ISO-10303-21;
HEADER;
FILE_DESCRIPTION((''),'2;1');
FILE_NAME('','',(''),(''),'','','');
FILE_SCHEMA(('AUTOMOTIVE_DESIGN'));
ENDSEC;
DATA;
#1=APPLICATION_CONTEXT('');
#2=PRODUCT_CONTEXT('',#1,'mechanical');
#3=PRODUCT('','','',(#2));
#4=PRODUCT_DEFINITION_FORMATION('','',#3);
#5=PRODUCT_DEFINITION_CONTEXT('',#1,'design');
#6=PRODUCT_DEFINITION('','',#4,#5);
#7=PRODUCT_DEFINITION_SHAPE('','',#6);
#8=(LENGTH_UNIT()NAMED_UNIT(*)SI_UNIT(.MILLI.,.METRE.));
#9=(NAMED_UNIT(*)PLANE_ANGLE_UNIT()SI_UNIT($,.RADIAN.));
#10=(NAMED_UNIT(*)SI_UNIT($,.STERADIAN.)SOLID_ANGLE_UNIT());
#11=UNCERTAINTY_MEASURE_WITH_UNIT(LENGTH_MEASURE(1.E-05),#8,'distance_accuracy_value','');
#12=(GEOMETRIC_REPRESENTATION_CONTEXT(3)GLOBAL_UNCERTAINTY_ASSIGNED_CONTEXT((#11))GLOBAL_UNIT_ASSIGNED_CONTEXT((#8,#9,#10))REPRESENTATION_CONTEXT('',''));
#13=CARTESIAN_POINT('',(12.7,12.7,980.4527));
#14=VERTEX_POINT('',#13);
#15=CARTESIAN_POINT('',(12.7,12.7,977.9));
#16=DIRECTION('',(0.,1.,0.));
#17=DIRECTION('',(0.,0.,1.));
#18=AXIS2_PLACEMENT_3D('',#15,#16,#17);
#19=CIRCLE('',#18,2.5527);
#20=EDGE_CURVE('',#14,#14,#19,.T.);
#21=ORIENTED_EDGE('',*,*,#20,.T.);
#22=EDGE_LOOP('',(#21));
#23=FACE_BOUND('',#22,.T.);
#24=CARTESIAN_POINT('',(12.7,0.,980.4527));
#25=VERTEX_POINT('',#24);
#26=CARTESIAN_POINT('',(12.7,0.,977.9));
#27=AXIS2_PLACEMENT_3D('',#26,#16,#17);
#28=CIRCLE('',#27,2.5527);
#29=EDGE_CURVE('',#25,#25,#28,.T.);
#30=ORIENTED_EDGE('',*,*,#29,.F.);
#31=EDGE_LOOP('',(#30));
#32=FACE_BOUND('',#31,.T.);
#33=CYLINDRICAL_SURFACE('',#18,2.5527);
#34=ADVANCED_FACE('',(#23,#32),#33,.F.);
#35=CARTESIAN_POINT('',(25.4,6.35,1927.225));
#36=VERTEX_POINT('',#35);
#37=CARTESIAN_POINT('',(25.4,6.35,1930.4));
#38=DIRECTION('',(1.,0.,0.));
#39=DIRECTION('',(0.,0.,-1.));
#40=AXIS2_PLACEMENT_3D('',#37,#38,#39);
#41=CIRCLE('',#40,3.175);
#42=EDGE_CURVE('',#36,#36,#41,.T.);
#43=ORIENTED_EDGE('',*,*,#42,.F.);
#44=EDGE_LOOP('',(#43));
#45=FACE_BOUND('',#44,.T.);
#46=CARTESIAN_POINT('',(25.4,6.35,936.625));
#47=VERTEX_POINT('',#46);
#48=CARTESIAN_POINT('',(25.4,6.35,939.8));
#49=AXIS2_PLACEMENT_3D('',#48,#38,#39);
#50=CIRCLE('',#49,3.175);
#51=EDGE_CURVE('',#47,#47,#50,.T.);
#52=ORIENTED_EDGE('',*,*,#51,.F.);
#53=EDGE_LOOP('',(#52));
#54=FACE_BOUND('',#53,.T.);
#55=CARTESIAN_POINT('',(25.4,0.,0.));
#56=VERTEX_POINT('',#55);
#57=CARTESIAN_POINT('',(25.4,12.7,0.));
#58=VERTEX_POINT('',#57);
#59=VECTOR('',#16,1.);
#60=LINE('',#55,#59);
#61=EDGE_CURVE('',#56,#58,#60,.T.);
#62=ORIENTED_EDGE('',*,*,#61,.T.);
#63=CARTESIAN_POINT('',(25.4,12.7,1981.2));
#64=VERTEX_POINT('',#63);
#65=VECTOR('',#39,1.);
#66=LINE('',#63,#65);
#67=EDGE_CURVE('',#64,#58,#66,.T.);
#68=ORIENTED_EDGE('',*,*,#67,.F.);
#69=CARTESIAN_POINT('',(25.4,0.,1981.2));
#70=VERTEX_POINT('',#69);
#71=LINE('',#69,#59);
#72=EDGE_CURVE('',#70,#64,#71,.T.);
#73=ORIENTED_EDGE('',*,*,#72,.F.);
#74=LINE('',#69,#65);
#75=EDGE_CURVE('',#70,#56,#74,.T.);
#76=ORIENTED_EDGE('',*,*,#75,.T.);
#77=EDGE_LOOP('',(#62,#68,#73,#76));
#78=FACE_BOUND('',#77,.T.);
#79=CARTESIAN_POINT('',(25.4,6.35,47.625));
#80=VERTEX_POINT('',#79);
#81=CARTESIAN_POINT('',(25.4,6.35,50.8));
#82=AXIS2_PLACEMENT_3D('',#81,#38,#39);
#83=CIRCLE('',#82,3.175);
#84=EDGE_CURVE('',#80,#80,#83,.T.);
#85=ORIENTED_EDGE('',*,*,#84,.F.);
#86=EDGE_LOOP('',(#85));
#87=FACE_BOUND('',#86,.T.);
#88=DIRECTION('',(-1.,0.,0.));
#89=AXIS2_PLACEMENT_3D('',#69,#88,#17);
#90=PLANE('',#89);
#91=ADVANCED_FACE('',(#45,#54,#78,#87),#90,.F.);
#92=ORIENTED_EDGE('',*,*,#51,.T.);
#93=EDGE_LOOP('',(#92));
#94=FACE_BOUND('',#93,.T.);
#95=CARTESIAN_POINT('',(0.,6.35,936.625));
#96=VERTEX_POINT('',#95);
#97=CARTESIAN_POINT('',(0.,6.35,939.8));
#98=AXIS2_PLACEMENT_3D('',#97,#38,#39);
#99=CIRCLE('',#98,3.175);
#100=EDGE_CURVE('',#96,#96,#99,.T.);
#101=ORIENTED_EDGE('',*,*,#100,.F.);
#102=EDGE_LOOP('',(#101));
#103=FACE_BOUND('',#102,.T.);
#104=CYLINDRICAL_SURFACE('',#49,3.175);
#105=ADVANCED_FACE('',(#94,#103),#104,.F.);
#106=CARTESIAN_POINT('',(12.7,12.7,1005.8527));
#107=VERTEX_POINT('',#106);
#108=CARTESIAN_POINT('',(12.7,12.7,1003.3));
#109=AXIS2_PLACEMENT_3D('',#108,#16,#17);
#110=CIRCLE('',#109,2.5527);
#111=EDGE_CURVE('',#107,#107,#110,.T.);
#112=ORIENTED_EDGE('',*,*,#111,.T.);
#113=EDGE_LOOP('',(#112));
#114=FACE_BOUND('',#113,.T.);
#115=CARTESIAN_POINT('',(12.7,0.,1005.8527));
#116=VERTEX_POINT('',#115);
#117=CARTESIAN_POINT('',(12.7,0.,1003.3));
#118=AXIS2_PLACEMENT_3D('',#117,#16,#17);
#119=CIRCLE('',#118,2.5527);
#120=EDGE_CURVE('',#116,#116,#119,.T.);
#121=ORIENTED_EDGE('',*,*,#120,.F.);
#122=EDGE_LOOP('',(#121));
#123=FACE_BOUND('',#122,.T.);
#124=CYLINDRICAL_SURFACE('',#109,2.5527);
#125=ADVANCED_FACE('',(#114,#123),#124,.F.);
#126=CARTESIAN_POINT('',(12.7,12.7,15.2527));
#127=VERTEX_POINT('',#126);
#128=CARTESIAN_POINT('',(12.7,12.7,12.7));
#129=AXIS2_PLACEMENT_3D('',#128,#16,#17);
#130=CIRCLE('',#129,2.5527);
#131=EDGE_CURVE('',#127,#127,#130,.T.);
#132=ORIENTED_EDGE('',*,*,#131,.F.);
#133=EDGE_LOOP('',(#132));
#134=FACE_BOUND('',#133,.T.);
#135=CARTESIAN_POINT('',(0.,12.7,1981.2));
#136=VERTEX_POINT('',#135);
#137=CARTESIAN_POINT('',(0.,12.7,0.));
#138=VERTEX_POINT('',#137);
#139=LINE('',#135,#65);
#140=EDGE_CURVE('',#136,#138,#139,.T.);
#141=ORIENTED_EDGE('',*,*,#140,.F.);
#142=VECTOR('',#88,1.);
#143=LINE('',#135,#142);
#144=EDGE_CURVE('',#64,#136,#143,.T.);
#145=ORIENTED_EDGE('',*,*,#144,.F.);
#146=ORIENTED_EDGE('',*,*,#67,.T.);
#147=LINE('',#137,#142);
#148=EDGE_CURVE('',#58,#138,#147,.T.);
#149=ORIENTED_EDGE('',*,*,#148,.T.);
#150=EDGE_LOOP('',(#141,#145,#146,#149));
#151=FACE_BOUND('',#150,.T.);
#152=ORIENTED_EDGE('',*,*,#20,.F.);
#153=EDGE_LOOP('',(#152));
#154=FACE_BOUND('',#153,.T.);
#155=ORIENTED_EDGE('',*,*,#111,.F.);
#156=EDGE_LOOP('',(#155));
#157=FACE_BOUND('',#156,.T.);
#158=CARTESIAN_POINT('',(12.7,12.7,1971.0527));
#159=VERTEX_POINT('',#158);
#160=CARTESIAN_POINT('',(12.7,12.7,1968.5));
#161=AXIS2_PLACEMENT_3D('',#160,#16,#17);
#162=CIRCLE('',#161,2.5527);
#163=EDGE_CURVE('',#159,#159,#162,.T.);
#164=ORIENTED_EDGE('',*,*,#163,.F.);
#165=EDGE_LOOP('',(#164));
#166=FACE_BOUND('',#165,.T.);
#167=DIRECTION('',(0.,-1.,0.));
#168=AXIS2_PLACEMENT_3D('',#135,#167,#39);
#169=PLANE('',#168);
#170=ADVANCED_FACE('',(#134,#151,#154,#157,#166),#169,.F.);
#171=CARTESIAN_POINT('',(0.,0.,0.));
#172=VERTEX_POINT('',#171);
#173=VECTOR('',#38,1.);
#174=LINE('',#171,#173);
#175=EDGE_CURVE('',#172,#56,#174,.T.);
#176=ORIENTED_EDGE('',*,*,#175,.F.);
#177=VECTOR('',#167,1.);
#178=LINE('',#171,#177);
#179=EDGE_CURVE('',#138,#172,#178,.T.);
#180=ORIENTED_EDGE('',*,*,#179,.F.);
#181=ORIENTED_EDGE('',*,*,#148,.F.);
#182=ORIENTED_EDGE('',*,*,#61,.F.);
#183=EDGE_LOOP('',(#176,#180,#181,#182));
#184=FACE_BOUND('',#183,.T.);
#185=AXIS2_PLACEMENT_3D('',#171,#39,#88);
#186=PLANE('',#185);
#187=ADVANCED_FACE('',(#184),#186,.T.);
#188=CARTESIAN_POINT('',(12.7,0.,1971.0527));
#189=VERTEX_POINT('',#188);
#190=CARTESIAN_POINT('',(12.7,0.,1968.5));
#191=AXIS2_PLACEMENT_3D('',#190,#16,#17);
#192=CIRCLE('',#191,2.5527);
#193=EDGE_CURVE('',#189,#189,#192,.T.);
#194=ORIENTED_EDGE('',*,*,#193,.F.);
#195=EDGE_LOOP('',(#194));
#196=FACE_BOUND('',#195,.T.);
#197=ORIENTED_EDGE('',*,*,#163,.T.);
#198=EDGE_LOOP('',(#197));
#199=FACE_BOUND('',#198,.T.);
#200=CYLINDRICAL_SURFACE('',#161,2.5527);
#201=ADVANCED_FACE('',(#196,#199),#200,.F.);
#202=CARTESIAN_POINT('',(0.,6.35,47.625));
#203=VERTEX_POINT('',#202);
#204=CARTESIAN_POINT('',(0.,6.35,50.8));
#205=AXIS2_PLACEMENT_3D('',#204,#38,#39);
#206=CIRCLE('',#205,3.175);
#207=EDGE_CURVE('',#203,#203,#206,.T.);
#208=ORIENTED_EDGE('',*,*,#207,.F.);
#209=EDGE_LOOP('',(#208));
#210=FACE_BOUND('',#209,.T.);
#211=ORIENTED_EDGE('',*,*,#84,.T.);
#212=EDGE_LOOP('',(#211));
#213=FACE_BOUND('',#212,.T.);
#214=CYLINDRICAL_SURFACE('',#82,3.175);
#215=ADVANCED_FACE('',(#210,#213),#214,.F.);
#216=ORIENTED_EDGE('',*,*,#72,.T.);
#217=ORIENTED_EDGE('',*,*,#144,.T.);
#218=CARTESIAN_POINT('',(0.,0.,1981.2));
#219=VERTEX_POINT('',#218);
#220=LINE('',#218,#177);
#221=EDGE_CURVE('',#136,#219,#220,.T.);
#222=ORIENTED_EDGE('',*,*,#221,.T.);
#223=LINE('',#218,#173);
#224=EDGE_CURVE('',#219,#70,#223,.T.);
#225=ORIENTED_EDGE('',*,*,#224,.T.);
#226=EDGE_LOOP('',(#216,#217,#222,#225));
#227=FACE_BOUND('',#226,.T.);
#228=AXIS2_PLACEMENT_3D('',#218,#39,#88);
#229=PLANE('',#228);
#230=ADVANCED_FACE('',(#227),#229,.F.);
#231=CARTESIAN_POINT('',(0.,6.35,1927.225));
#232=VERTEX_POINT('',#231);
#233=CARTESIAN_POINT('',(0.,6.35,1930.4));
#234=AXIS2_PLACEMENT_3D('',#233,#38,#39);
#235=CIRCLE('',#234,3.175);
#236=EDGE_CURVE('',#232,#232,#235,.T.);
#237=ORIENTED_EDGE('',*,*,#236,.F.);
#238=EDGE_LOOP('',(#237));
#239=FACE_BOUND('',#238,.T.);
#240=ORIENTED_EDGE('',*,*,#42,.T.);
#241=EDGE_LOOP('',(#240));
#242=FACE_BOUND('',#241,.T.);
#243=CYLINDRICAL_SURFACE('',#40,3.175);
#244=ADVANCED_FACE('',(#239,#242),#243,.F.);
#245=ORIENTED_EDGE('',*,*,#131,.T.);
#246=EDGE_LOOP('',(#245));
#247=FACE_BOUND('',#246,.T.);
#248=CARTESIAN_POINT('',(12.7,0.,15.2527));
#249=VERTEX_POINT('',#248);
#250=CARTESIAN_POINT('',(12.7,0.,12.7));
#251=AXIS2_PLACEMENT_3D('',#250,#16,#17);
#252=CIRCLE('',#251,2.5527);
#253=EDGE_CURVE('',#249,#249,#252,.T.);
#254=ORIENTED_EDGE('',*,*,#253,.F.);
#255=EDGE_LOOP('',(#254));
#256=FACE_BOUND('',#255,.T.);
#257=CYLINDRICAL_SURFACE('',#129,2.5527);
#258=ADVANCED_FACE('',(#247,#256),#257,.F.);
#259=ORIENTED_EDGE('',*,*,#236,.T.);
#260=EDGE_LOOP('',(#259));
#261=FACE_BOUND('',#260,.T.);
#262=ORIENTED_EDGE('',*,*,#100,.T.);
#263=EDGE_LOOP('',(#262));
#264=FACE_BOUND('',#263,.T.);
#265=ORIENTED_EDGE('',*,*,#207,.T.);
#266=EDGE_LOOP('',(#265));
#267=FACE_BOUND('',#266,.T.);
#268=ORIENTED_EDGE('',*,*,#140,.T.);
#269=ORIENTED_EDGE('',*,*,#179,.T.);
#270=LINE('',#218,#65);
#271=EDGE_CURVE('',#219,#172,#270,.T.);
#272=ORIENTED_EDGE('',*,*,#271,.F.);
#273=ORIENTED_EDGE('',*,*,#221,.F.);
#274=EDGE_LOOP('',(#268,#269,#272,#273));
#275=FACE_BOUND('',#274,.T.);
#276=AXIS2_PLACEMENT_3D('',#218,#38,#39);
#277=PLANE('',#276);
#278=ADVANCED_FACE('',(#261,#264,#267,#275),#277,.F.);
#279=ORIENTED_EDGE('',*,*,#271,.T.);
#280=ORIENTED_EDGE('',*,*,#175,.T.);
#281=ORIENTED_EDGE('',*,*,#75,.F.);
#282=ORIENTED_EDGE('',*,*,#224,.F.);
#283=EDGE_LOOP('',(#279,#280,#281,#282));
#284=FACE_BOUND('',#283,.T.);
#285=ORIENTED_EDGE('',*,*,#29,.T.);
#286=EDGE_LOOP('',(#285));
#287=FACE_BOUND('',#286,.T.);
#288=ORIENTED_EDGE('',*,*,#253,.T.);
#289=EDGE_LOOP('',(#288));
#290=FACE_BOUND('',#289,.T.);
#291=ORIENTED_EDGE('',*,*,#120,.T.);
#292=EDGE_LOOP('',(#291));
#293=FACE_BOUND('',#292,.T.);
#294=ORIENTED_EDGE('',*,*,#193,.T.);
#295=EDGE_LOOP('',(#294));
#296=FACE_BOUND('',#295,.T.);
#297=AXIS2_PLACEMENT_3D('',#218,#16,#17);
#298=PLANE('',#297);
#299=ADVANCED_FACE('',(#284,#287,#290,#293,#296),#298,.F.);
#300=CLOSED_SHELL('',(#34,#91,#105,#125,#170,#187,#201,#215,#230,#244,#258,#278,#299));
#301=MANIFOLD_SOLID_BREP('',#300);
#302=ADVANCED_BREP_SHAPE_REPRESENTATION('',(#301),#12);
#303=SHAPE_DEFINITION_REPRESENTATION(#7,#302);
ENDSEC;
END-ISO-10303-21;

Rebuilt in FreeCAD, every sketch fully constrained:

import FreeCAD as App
import Part
import Sketcher
Q = App.Units.Quantity

doc = App.newDocument("Part")
body = doc.addObject("PartDesign::Body", "Body")

# Sketch on XY plane
sketch1 = doc.addObject("Sketcher::SketchObject", "Sketch")
body.addObject(sketch1)
sketch1.AttachmentSupport = (doc.XY_Plane, [""])
sketch1.MapMode = "FlatFace"
sketch1.addGeometry(Part.LineSegment(App.Vector(0, 13, 0), App.Vector(0, 0, 0)), False)
sketch1.addGeometry(Part.LineSegment(App.Vector(0, 0, 0), App.Vector(25, 0, 0)), False)
sketch1.addGeometry(Part.LineSegment(App.Vector(25, 0, 0), App.Vector(25, 13, 0)), False)
sketch1.addGeometry(Part.LineSegment(App.Vector(25, 13, 0), App.Vector(0, 13, 0)), False)
sketch1.addConstraint(Sketcher.Constraint("Coincident", 0, 2, 1, 1))
sketch1.addConstraint(Sketcher.Constraint("Coincident", 1, 2, 2, 1))
sketch1.addConstraint(Sketcher.Constraint("Coincident", 2, 2, 3, 1))
sketch1.addConstraint(Sketcher.Constraint("Coincident", 3, 2, 0, 1))
sketch1.addConstraint(Sketcher.Constraint("Vertical", 0))
sketch1.addConstraint(Sketcher.Constraint("Horizontal", 1))
sketch1.addConstraint(Sketcher.Constraint("Vertical", 2))
sketch1.addConstraint(Sketcher.Constraint("Horizontal", 3))
sketch1.addConstraint(Sketcher.Constraint("Coincident", 0, 2, -1, 1))
sketch1.addConstraint(Sketcher.Constraint("DistanceX", 1, 1, 1, 2, Q("1 in")))
sketch1.addConstraint(Sketcher.Constraint("DistanceY", 0, 2, 0, 1, Q("0.5 in")))
pad1 = doc.addObject("PartDesign::Pad", "Pad")
body.addObject(pad1)
pad1.Profile = sketch1
pad1.Length = Q("78 in")

# Sketch on XZ plane
sketch2 = doc.addObject("Sketcher::SketchObject", "Sketch001")
body.addObject(sketch2)
sketch2.AttachmentSupport = (doc.XZ_Plane, [""])
sketch2.MapMode = "FlatFace"
sketch2.AttachmentOffset = App.Placement(App.Vector(0, 0, -0.5 * 25.4), App.Rotation())
sketch2.addGeometry(Part.Circle(App.Vector(12.7, 1968.5, 0), App.Vector(0, 0, 1), 2.6), False)
sketch2.addGeometry(Part.Circle(App.Vector(12.7, 977.9, 0), App.Vector(0, 0, 1), 2.6), False)
sketch2.addGeometry(Part.Circle(App.Vector(12.7, 1003.3, 0), App.Vector(0, 0, 1), 2.6), False)
sketch2.addGeometry(Part.Circle(App.Vector(12.7, 12.7, 0), App.Vector(0, 0, 1), 2.6), False)
sketch2.addConstraint(Sketcher.Constraint("Equal", 0, 1))
sketch2.addConstraint(Sketcher.Constraint("Equal", 1, 2))
sketch2.addConstraint(Sketcher.Constraint("Equal", 2, 3))
sketch2.addConstraint(Sketcher.Constraint("Vertical", 0, 3, 1, 3))
sketch2.addConstraint(Sketcher.Constraint("Vertical", 1, 3, 2, 3))
sketch2.addConstraint(Sketcher.Constraint("Vertical", 2, 3, 3, 3))
sketch2.addConstraint(Sketcher.Constraint("Diameter", 0, Q("0.201 in")))
sketch2.addConstraint(Sketcher.Constraint("DistanceY", 1, 3, 0, 3, Q("39 in")))
sketch2.addConstraint(Sketcher.Constraint("DistanceY", 1, 3, 2, 3, Q("1 in")))
sketch2.addConstraint(Sketcher.Constraint("DistanceY", 3, 3, 1, 3, Q("38 in")))
sketch2.addConstraint(Sketcher.Constraint("DistanceX", -1, 1, 0, 3, Q("0.5 in")))
sketch2.addConstraint(Sketcher.Constraint("DistanceY", -1, 1, 0, 3, Q("77.5 in")))
doc.recompute()
hole = doc.addObject("PartDesign::Hole", "Hole")
body.addObject(hole)
hole.Profile = sketch2
hole.ThreadType = "None"
hole.Diameter = Q("0.201 in")
hole.DepthType = "ThroughAll"
hole.Reversed = True

# Sketch on YZ plane
sketch3 = doc.addObject("Sketcher::SketchObject", "Sketch002")
body.addObject(sketch3)
sketch3.AttachmentSupport = (doc.YZ_Plane, [""])
sketch3.MapMode = "FlatFace"
sketch3.AttachmentOffset = App.Placement(App.Vector(0, 0, 1 * 25.4), App.Rotation())
sketch3.addGeometry(Part.Circle(App.Vector(6.3, 50.8, 0), App.Vector(0, 0, 1), 3.2), False)
sketch3.addGeometry(Part.Circle(App.Vector(6.3, 939.8, 0), App.Vector(0, 0, 1), 3.2), False)
sketch3.addGeometry(Part.Circle(App.Vector(6.3, 1930.4, 0), App.Vector(0, 0, 1), 3.2), False)
sketch3.addConstraint(Sketcher.Constraint("Equal", 0, 1))
sketch3.addConstraint(Sketcher.Constraint("Equal", 1, 2))
sketch3.addConstraint(Sketcher.Constraint("Vertical", 0, 3, 1, 3))
sketch3.addConstraint(Sketcher.Constraint("Vertical", 1, 3, 2, 3))
sketch3.addConstraint(Sketcher.Constraint("Diameter", 0, Q("0.25 in")))
sketch3.addConstraint(Sketcher.Constraint("DistanceY", -1, 1, 0, 3, Q("2 in")))
sketch3.addConstraint(Sketcher.Constraint("DistanceY", -1, 1, 1, 3, Q("37 in")))
sketch3.addConstraint(Sketcher.Constraint("DistanceY", -1, 1, 2, 3, Q("76 in")))
sketch3.addConstraint(Sketcher.Constraint("DistanceX", -1, 1, 0, 3, Q("0.25 in")))
doc.recompute()
hole2 = doc.addObject("PartDesign::Hole", "Hole001")
body.addObject(hole2)
hole2.Profile = sketch3
hole2.ThreadType = "None"
hole2.Diameter = Q("0.25 in")
hole2.DepthType = "ThroughAll"

doc.recompute()
